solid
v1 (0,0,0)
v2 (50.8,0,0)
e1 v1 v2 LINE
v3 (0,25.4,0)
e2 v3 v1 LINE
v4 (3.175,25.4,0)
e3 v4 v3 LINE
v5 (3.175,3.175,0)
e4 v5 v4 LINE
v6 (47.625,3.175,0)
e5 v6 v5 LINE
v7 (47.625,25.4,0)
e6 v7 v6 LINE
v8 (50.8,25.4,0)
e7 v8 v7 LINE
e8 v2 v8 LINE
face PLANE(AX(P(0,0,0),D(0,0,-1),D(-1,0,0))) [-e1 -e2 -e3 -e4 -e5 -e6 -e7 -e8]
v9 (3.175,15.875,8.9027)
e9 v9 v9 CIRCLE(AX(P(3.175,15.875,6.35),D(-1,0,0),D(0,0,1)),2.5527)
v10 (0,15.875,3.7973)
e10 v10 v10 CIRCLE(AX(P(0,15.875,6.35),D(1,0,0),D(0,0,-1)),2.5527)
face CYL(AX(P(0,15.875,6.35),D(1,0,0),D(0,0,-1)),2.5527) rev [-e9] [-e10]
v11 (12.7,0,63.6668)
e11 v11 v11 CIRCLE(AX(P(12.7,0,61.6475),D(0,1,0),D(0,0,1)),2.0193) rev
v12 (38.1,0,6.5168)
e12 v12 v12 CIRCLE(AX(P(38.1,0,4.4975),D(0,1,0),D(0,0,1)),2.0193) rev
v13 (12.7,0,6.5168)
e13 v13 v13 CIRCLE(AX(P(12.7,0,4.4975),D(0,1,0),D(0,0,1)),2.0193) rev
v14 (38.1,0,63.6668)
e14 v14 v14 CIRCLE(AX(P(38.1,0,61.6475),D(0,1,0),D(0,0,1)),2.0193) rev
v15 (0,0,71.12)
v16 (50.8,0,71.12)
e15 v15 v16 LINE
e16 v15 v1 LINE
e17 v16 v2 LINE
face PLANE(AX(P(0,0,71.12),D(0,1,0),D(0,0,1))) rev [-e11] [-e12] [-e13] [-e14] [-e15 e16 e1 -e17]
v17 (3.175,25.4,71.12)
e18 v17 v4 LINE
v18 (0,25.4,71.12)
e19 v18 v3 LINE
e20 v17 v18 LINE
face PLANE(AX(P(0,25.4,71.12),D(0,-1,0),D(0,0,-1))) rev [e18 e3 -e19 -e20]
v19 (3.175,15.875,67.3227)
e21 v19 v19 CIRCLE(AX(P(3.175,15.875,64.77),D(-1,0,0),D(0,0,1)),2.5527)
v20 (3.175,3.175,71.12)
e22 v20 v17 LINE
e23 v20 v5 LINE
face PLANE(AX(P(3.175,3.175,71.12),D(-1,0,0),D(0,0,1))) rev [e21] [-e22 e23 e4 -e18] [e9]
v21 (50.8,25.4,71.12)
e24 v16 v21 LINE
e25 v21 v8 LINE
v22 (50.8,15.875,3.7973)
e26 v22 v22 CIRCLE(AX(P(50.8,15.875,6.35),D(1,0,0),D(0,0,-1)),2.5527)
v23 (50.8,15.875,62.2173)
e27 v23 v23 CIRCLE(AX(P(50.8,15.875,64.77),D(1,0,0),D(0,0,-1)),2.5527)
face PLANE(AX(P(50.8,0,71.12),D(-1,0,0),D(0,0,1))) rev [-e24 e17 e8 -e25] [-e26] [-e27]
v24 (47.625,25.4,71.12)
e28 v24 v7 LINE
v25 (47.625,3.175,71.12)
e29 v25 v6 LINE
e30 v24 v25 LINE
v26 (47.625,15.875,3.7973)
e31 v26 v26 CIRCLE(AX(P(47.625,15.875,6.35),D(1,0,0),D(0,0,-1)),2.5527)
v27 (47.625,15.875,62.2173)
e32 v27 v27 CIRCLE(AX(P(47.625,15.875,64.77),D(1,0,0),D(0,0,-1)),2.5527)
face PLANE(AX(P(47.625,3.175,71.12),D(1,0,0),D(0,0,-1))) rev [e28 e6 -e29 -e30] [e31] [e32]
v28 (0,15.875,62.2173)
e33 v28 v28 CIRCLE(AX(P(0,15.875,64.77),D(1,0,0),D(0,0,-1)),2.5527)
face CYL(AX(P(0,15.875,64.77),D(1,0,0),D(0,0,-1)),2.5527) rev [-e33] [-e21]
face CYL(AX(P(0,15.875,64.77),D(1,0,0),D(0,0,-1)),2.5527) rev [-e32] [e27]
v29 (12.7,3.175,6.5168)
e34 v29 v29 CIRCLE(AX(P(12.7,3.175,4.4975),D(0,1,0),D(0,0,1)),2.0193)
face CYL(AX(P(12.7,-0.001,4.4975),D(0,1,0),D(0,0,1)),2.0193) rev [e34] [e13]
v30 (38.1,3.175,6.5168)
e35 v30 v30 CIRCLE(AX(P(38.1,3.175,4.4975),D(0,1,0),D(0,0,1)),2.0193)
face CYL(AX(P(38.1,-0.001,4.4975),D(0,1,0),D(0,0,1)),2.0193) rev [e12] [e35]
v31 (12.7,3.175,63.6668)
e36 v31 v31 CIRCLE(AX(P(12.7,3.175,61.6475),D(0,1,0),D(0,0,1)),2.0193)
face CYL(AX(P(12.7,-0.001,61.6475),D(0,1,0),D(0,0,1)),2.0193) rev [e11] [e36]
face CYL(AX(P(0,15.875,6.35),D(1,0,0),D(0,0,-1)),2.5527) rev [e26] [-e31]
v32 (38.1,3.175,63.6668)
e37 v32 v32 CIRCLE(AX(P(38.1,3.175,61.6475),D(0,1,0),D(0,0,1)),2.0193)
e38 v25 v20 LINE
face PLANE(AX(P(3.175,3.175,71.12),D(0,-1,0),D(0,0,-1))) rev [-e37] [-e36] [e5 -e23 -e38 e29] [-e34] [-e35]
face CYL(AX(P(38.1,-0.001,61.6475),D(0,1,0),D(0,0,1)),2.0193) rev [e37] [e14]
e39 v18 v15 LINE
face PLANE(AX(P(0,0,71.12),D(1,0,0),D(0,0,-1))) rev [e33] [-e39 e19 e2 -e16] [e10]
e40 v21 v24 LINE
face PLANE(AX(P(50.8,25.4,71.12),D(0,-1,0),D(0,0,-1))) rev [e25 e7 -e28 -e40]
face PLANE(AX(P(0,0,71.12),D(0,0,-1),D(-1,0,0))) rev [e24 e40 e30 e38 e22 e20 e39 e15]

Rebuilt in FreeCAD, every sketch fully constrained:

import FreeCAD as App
import Part
import Sketcher

V = App.Vector
Q = App.Units.Quantity

doc = App.newDocument("Part")
body = doc.addObject("PartDesign::Body", "Body")

# Sketch on XY plane
sketch1 = body.newObject("Sketcher::SketchObject", "Sketch")
sketch1.AttachmentSupport = (doc.getObject("XY_Plane"), [""])
sketch1.MapMode = "FlatFace"
sketch1.addGeometry([
    Part.LineSegment(V(47.6, 25.4, 0), V(47.6, 3.2, 0)),  # 0
    Part.LineSegment(V(47.6, 3.2, 0), V(3.2, 3.2, 0)),  # 1
    Part.LineSegment(V(3.2, 3.2, 0), V(3.2, 25.4, 0)),  # 2
    Part.LineSegment(V(3.2, 25.4, 0), V(0, 25.4, 0)),  # 3
    Part.LineSegment(V(0, 25.4, 0), V(0, 0, 0)),  # 4
    Part.LineSegment(V(0, 0, 0), V(50.8, 0, 0)),  # 5
    Part.LineSegment(V(50.8, 0, 0), V(50.8, 25.4, 0)),  # 6
    Part.LineSegment(V(50.8, 25.4, 0), V(47.6, 25.4, 0)),  # 7
], False)
sketch1.addConstraint([
    Sketcher.Constraint("Coincident", 0, 2, 1, 1),
    Sketcher.Constraint("Coincident", 1, 2, 2, 1),
    Sketcher.Constraint("Coincident", 2, 2, 3, 1),
    Sketcher.Constraint("Coincident", 3, 2, 4, 1),
    Sketcher.Constraint("Coincident", 4, 2, 5, 1),
    Sketcher.Constraint("Coincident", 5, 2, 6, 1),
    Sketcher.Constraint("Coincident", 6, 2, 7, 1),
    Sketcher.Constraint("Coincident", 7, 2, 0, 1),
    Sketcher.Constraint("Vertical", 0),
    Sketcher.Constraint("Horizontal", 1),
    Sketcher.Constraint("Vertical", 2),
    Sketcher.Constraint("Horizontal", 3),
    Sketcher.Constraint("Vertical", 4),
    Sketcher.Constraint("Horizontal", 5),
    Sketcher.Constraint("Vertical", 6),
    Sketcher.Constraint("Horizontal", 7),
    Sketcher.Constraint("Coincident", 4, 2, -1, 1),
    Sketcher.Constraint("Horizontal", 3, 2, 6, 2),
    Sketcher.Constraint("Equal", 3, 7),
    Sketcher.Constraint("DistanceX", 5, 1, 5, 2, Q("2 in")),
    Sketcher.Constraint("DistanceY", 4, 2, 4, 1, Q("1 in")),
    Sketcher.Constraint("DistanceX", 1, 2, 1, 1, Q("1.75 in")),
    Sketcher.Constraint("DistanceY", 0, 2, 0, 1, Q("0.875 in")),
])
pad1 = body.newObject("PartDesign::Pad", "Pad")
pad1.Profile = sketch1
pad1.Length = Q("2.8 in")

# Sketch on XZ plane
sketch2 = body.newObject("Sketcher::SketchObject", "Sketch001")
sketch2.AttachmentSupport = (doc.getObject("XZ_Plane"), [""])
sketch2.MapMode = "FlatFace"
sketch2.AttachmentOffset = App.Placement(V(0, 0, -0.125 * 25.4), App.Rotation())
sketch2.addGeometry(Part.Circle(V(38.1, 4.5, 0), V(0, 0, 1), 2), False)
sketch2.addConstraint([
    Sketcher.Constraint("Diameter", 0, Q("0.159 in")),
    Sketcher.Constraint("DistanceX", -1, 1, 0, 3, Q("1.5 in")),
    Sketcher.Constraint("DistanceY", -1, 1, 0, 3, Q("4.4975 mm")),
])
pocket1 = body.newObject("PartDesign::Pocket", "Pocket")
pocket1.Profile = sketch2
pocket1.Type = "UpToFirst"
pocket1.Reversed = True

# Sketch on XZ plane
sketch3 = body.newObject("Sketcher::SketchObject", "Sketch002")
sketch3.AttachmentSupport = (doc.getObject("XZ_Plane"), [""])
sketch3.MapMode = "FlatFace"
sketch3.AttachmentOffset = App.Placement(V(0, 0, -0.125 * 25.4), App.Rotation())
sketch3.addGeometry(Part.Circle(V(38.1, 61.6, 0), V(0, 0, 1), 2), False)
sketch3.addConstraint([
    Sketcher.Constraint("Diameter", 0, Q("0.159 in")),
    Sketcher.Constraint("DistanceX", -1, 1, 0, 3, Q("1.5 in")),
    Sketcher.Constraint("DistanceY", -1, 1, 0, 3, Q("61.6475 mm")),
])
pocket2 = body.newObject("PartDesign::Pocket", "Pocket001")
pocket2.Profile = sketch3
pocket2.Type = "UpToFirst"
pocket2.Reversed = True

# Sketch on XZ plane
sketch4 = body.newObject("Sketcher::SketchObject", "Sketch003")
sketch4.AttachmentSupport = (doc.getObject("XZ_Plane"), [""])
sketch4.MapMode = "FlatFace"
sketch4.AttachmentOffset = App.Placement(V(0, 0, -0.125 * 25.4), App.Rotation())
sketch4.addGeometry(Part.Circle(V(12.7, 4.5, 0), V(0, 0, 1), 2), False)
sketch4.addConstraint([
    Sketcher.Constraint("Diameter", 0, Q("0.159 in")),
    Sketcher.Constraint("DistanceX", -1, 1, 0, 3, Q("0.5 in")),
    Sketcher.Constraint("DistanceY", -1, 1, 0, 3, Q("4.4975 mm")),
])
pocket3 = body.newObject("PartDesign::Pocket", "Pocket002")
pocket3.Profile = sketch4
pocket3.Type = "UpToFirst"
pocket3.Reversed = True

# Sketch on XZ plane
sketch5 = body.newObject("Sketcher::SketchObject", "Sketch004")
sketch5.AttachmentSupport = (doc.getObject("XZ_Plane"), [""])
sketch5.MapMode = "FlatFace"
sketch5.AttachmentOffset = App.Placement(V(0, 0, -0.125 * 25.4), App.Rotation())
sketch5.addGeometry(Part.Circle(V(12.7, 61.6, 0), V(0, 0, 1), 2), False)
sketch5.addConstraint([
    Sketcher.Constraint("Diameter", 0, Q("0.159 in")),
    Sketcher.Constraint("DistanceX", -1, 1, 0, 3, Q("0.5 in")),
    Sketcher.Constraint("DistanceY", -1, 1, 0, 3, Q("61.6475 mm")),
])
pocket4 = body.newObject("PartDesign::Pocket", "Pocket003")
pocket4.Profile = sketch5
pocket4.Type = "UpToFirst"
pocket4.Reversed = True

# Sketch on YZ plane
sketch6 = body.newObject("Sketcher::SketchObject", "Sketch005")
sketch6.AttachmentSupport = (doc.getObject("YZ_Plane"), [""])
sketch6.MapMode = "FlatFace"
sketch6.AttachmentOffset = App.Placement(V(0, 0, 2 * 25.4), App.Rotation())
sketch6.addGeometry([
    Part.Circle(V(15.9, 6.3, 0), V(0, 0, 1), 2.6),
    Part.Circle(V(15.9, 64.8, 0), V(0, 0, 1), 2.6),
], False)
sketch6.addConstraint([
    Sketcher.Constraint("Equal", 0, 1),
    Sketcher.Constraint("Vertical", 0, 3, 1, 3),
    Sketcher.Constraint("Diameter", 0, Q("0.201 in")),
    Sketcher.Constraint("DistanceY", 0, 3, 1, 3, Q("2.3 in")),
    Sketcher.Constraint("DistanceY", -1, 1, 0, 3, Q("0.25 in")),
    Sketcher.Constraint("DistanceX", -1, 1, 0, 3, Q("0.625 in")),
])
pocket5 = body.newObject("PartDesign::Pocket", "Pocket004")
pocket5.Profile = sketch6
pocket5.Type = "ThroughAll"

doc.recompute()
